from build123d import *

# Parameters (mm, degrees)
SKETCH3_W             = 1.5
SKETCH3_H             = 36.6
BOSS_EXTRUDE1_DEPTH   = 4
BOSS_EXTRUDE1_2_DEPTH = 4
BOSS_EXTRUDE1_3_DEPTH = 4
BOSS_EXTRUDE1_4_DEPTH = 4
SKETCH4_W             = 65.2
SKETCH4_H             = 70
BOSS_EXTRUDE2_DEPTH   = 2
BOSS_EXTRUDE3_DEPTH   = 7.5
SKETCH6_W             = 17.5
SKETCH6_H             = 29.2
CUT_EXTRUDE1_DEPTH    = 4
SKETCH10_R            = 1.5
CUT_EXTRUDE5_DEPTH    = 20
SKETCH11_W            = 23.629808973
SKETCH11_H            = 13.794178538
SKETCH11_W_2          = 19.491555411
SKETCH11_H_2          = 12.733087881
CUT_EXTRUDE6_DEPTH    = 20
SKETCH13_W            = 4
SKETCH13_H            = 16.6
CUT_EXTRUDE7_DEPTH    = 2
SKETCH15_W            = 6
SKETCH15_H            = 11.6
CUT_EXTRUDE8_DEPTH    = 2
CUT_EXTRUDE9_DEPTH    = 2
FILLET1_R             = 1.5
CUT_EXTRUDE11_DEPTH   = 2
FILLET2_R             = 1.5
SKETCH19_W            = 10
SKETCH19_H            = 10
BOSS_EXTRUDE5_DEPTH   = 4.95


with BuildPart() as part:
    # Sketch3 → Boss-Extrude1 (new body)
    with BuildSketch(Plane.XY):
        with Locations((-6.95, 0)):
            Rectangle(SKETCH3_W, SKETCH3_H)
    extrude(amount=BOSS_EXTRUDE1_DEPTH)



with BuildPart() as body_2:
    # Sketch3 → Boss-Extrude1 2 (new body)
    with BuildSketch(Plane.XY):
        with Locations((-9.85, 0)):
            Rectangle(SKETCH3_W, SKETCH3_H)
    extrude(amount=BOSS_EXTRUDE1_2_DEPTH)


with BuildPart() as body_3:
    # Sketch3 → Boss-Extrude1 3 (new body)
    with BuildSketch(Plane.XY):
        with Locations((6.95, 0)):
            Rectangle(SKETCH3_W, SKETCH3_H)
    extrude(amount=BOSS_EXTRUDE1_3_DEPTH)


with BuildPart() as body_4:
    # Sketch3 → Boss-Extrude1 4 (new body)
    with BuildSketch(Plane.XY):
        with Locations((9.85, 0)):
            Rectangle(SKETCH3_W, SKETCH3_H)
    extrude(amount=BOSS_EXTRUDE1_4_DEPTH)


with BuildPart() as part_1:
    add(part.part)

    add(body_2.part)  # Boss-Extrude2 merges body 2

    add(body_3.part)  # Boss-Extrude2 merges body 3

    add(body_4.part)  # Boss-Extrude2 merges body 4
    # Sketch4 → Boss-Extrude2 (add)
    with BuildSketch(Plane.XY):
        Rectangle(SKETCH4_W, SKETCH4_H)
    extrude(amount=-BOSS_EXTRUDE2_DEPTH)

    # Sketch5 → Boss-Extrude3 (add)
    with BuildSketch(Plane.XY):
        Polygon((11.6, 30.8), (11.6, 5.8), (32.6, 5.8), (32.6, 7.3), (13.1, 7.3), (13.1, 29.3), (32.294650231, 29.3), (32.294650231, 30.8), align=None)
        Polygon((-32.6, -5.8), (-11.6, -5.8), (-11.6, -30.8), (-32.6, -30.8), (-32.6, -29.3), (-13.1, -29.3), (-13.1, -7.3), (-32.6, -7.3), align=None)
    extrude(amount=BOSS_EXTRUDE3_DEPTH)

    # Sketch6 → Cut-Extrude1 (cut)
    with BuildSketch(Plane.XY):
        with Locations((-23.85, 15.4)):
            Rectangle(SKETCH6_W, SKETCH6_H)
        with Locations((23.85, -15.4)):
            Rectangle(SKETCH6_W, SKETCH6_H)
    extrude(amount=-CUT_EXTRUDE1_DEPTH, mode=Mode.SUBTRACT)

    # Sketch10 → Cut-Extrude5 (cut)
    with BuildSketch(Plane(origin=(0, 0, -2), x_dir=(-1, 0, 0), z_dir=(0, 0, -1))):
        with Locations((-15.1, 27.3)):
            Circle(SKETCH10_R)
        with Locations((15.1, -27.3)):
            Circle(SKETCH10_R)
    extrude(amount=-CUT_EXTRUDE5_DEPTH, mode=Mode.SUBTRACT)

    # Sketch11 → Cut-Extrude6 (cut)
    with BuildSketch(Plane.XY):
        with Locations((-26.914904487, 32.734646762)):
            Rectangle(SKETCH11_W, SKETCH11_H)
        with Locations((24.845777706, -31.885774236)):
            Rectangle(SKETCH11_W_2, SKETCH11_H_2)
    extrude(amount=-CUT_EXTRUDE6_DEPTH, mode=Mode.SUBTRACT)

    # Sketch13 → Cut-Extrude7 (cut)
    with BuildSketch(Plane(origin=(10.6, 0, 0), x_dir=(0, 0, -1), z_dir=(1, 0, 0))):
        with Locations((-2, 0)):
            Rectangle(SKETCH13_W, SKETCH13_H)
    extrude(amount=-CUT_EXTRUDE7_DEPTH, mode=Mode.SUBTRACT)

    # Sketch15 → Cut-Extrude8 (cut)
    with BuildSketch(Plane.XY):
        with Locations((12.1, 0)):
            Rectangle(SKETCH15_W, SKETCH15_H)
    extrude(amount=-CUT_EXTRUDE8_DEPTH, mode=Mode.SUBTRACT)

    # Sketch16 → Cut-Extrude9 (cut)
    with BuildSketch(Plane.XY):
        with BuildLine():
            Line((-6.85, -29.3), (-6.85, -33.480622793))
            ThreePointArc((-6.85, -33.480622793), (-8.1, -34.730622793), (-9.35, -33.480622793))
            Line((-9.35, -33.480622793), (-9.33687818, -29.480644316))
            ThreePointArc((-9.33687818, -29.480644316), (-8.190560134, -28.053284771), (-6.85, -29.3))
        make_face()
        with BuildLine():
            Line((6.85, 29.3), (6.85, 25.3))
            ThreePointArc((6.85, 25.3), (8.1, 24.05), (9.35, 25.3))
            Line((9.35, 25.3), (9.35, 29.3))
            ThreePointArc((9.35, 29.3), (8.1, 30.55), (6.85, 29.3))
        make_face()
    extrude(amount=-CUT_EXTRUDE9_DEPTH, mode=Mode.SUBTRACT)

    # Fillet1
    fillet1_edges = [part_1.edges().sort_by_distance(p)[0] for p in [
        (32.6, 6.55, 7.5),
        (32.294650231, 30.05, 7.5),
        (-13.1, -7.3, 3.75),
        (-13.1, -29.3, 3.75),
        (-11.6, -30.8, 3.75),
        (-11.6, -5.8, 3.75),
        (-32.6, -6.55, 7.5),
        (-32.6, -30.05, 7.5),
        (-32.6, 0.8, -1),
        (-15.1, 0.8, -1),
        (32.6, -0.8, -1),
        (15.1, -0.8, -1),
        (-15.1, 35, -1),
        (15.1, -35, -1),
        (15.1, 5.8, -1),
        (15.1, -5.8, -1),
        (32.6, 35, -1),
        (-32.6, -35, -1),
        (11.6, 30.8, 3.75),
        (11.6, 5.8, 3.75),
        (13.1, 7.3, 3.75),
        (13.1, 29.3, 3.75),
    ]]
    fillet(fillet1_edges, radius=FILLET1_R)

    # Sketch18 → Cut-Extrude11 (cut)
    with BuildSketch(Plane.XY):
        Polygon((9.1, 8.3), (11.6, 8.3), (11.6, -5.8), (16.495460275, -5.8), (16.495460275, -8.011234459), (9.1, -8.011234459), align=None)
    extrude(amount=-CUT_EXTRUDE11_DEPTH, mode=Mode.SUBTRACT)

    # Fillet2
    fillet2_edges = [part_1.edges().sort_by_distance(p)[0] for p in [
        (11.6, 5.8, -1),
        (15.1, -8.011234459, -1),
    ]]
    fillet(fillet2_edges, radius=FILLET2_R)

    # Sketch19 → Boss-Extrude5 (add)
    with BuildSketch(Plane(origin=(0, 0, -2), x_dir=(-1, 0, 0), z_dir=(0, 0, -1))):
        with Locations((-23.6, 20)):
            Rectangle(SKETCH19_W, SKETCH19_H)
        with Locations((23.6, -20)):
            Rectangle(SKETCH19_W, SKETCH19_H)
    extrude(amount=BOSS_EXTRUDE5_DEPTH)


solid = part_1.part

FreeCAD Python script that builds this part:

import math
import FreeCAD as App
import Part
import Sketcher

V = App.Vector


def edges_at(feature, points):
    """Names of the edges that pass closest to the given points."""
    edges = feature.Shape.Edges
    near = lambda p: min(range(len(edges)), key=lambda i: edges[i].distToShape(Part.Vertex(*p))[0])
    return sorted({f"Edge{near(p) + 1}" for p in points})


def add_polygon(sketch, points):
    """Adds a closed chain of lines whose ends are joined by coincident constraints."""
    first, n = sketch.GeometryCount, len(points)
    for a, b in zip(points, points[1:] + points[:1]):
        sketch.addGeometry(Part.LineSegment(App.Vector(*a, 0), App.Vector(*b, 0)), False)
    for i in range(n):
        sketch.addConstraint(Sketcher.Constraint("Coincident", first + i, 2, first + (i + 1) % n, 1))

doc = App.newDocument("Part")
body = doc.addObject("PartDesign::Body", "Body")

sketch1 = body.newObject("Sketcher::SketchObject", "Sketch")
sketch1.AttachmentSupport = (doc.getObject("XY_Plane"), [""])
sketch1.MapMode = "FlatFace"
add_polygon(sketch1, [(-7.7, 18.3), (-7.7, -18.3), (-6.2, -18.3), (-6.2, 18.3)])
sketch1.addConstraint(Sketcher.Constraint("Vertical", 0))
sketch1.addConstraint(Sketcher.Constraint("Horizontal", 1))
sketch1.addConstraint(Sketcher.Constraint("Vertical", 2))
sketch1.addConstraint(Sketcher.Constraint("Horizontal", 3))
sketch1.addConstraint(Sketcher.Constraint("DistanceX", 1, 1, 1, 2, 1.5))
sketch1.addConstraint(Sketcher.Constraint("DistanceY", 0, 2, 0, 1, 36.6))
sketch1.addConstraint(Sketcher.Constraint("DistanceX", 0, 2, -1, 1, 7.7))
sketch1.addConstraint(Sketcher.Constraint("DistanceY", 0, 2, -1, 1, 18.3))
pad1 = body.newObject("PartDesign::Pad", "Pad")
pad1.Profile = sketch1
pad1.Length = 4
body2 = doc.addObject("PartDesign::Body", "Body001")

sketch2 = body2.newObject("Sketcher::SketchObject", "Sketch001")
sketch2.AttachmentSupport = (doc.getObject("XY_Plane001"), [""])
sketch2.MapMode = "FlatFace"
add_polygon(sketch2, [(-10.6, 18.3), (-10.6, -18.3), (-9.1, -18.3), (-9.1, 18.3)])
sketch2.addConstraint(Sketcher.Constraint("Vertical", 0))
sketch2.addConstraint(Sketcher.Constraint("Horizontal", 1))
sketch2.addConstraint(Sketcher.Constraint("Vertical", 2))
sketch2.addConstraint(Sketcher.Constraint("Horizontal", 3))
sketch2.addConstraint(Sketcher.Constraint("DistanceX", 1, 1, 1, 2, 1.5))
sketch2.addConstraint(Sketcher.Constraint("DistanceY", 0, 2, 0, 1, 36.6))
sketch2.addConstraint(Sketcher.Constraint("DistanceX", 0, 2, -1, 1, 10.6))
sketch2.addConstraint(Sketcher.Constraint("DistanceY", 0, 2, -1, 1, 18.3))
pad2 = body2.newObject("PartDesign::Pad", "Pad001")
pad2.Profile = sketch2
pad2.Length = 4
body3 = doc.addObject("PartDesign::Body", "Body002")

sketch3 = body3.newObject("Sketcher::SketchObject", "Sketch002")
sketch3.AttachmentSupport = (doc.getObject("XY_Plane002"), [""])
sketch3.MapMode = "FlatFace"
add_polygon(sketch3, [(6.2, 18.3), (6.2, -18.3), (7.7, -18.3), (7.7, 18.3)])
sketch3.addConstraint(Sketcher.Constraint("Vertical", 0))
sketch3.addConstraint(Sketcher.Constraint("Horizontal", 1))
sketch3.addConstraint(Sketcher.Constraint("Vertical", 2))
sketch3.addConstraint(Sketcher.Constraint("Horizontal", 3))
sketch3.addConstraint(Sketcher.Constraint("DistanceX", 1, 1, 1, 2, 1.5))
sketch3.addConstraint(Sketcher.Constraint("DistanceY", 0, 2, 0, 1, 36.6))
sketch3.addConstraint(Sketcher.Constraint("DistanceX", -1, 1, 0, 2, 6.2))
sketch3.addConstraint(Sketcher.Constraint("DistanceY", 0, 2, -1, 1, 18.3))
pad3 = body3.newObject("PartDesign::Pad", "Pad002")
pad3.Profile = sketch3
pad3.Length = 4
body4 = doc.addObject("PartDesign::Body", "Body003")

sketch4 = body4.newObject("Sketcher::SketchObject", "Sketch003")
sketch4.AttachmentSupport = (doc.getObject("XY_Plane003"), [""])
sketch4.MapMode = "FlatFace"
add_polygon(sketch4, [(9.1, 18.3), (9.1, -18.3), (10.6, -18.3), (10.6, 18.3)])
sketch4.addConstraint(Sketcher.Constraint("Vertical", 0))
sketch4.addConstraint(Sketcher.Constraint("Horizontal", 1))
sketch4.addConstraint(Sketcher.Constraint("Vertical", 2))
sketch4.addConstraint(Sketcher.Constraint("Horizontal", 3))
sketch4.addConstraint(Sketcher.Constraint("DistanceX", 1, 1, 1, 2, 1.5))
sketch4.addConstraint(Sketcher.Constraint("DistanceY", 0, 2, 0, 1, 36.6))
sketch4.addConstraint(Sketcher.Constraint("DistanceX", -1, 1, 0, 2, 9.1))
sketch4.addConstraint(Sketcher.Constraint("DistanceY", 0, 2, -1, 1, 18.3))
pad4 = body4.newObject("PartDesign::Pad", "Pad003")
pad4.Profile = sketch4
pad4.Length = 4
body.AllowCompound = True
doc.recompute()

boolean = body.newObject("PartDesign::Boolean", "Boolean")
boolean.Type = "Fuse"
boolean.addObjects([body2])
doc.recompute()

boolean2 = body.newObject("PartDesign::Boolean", "Boolean001")
boolean2.Type = "Fuse"
boolean2.addObjects([body3])
doc.recompute()

boolean3 = body.newObject("PartDesign::Boolean", "Boolean002")
boolean3.Type = "Fuse"
boolean3.addObjects([body4])

sketch5 = body.newObject("Sketcher::SketchObject", "Sketch004")
sketch5.AttachmentSupport = (doc.getObject("XY_Plane"), [""])
sketch5.MapMode = "FlatFace"
add_polygon(sketch5, [(-33, 35), (-33, -35), (33, -35), (33, 35)])
sketch5.addConstraint(Sketcher.Constraint("Vertical", 0))
sketch5.addConstraint(Sketcher.Constraint("Horizontal", 1))
sketch5.addConstraint(Sketcher.Constraint("Vertical", 2))
sketch5.addConstraint(Sketcher.Constraint("Horizontal", 3))
sketch5.addConstraint(Sketcher.Constraint("Symmetric", 0, 2, 2, 2, -1, 1))
sketch5.addConstraint(Sketcher.Constraint("DistanceY", 0, 2, 0, 1, 70.0))
sketch5.addConstraint(Sketcher.Constraint("DistanceX", 1, 1, 1, 2, 65.2))
pad5 = body.newObject("PartDesign::Pad", "Pad004")
pad5.Profile = sketch5
pad5.Length = 2
pad5.Reversed = True

sketch6 = body.newObject("Sketcher::SketchObject", "Sketch005")
sketch6.AttachmentSupport = (doc.getObject("XY_Plane"), [""])
sketch6.MapMode = "FlatFace"
add_polygon(sketch6, [(11.6, 30.8), (11.6, 5.8), (32.6, 5.8), (32.6, 7.3), (13.1, 7.3), (13.1, 29.3), (32.3, 29.3), (32.3, 30.8)])
add_polygon(sketch6, [(-11.6, -5.8), (-32.6, -5.8), (-32.6, -7.3), (-13.1, -7.3), (-13.1, -29.3), (-32.6, -29.3), (-32.6, -30.8), (-11.6, -30.8)])
sketch6.addConstraint(Sketcher.Constraint("Vertical", 0))
sketch6.addConstraint(Sketcher.Constraint("Horizontal", 1))
sketch6.addConstraint(Sketcher.Constraint("Vertical", 2))
sketch6.addConstraint(Sketcher.Constraint("Horizontal", 3))
sketch6.addConstraint(Sketcher.Constraint("Vertical", 4))
sketch6.addConstraint(Sketcher.Constraint("Horizontal", 5))
sketch6.addConstraint(Sketcher.Constraint("Vertical", 6))
sketch6.addConstraint(Sketcher.Constraint("Horizontal", 7))
sketch6.addConstraint(Sketcher.Constraint("Horizontal", 8))
sketch6.addConstraint(Sketcher.Constraint("Vertical", 9))
sketch6.addConstraint(Sketcher.Constraint("Horizontal", 10))
sketch6.addConstraint(Sketcher.Constraint("Vertical", 11))
sketch6.addConstraint(Sketcher.Constraint("Horizontal", 12))
sketch6.addConstraint(Sketcher.Constraint("Vertical", 13))
sketch6.addConstraint(Sketcher.Constraint("Horizontal", 14))
sketch6.addConstraint(Sketcher.Constraint("Vertical", 15))
sketch6.addConstraint(Sketcher.Constraint("Symmetric", 1, 2, 8, 2, -1, 1))
sketch6.addConstraint(Sketcher.Constraint("Symmetric", 3, 2, 10, 2, -1, 1))
sketch6.addConstraint(Sketcher.Constraint("Symmetric", 7, 2, 14, 2, -1, 1))
sketch6.addConstraint(Sketcher.Constraint("Vertical", 9, 2, 12, 2))
sketch6.addConstraint(Sketcher.Constraint("Equal", 2, 6))
sketch6.addConstraint(Sketcher.Constraint("Equal", 4, 11))
sketch6.addConstraint(Sketcher.Constraint("DistanceX", 1, 1, 1, 2, 21.0))
sketch6.addConstraint(Sketcher.Constraint("DistanceY", 0, 2, 0, 1, 25.0))
sketch6.addConstraint(Sketcher.Constraint("DistanceY", 4, 1, 4, 2, 22.0))
sketch6.addConstraint(Sketcher.Constraint("DistanceX", 3, 2, 3, 1, 19.5))
sketch6.addConstraint(Sketcher.Constraint("DistanceX", -1, 1, 0, 2, 11.6))
sketch6.addConstraint(Sketcher.Constraint("DistanceY", -1, 1, 0, 2, 5.8))
sketch6.addConstraint(Sketcher.Constraint("DistanceX", 5, 1, 5, 2, 19.19465))
pad6 = body.newObject("PartDesign::Pad", "Pad005")
pad6.Profile = sketch6
pad6.Length = 7.5

sketch7 = body.newObject("Sketcher::SketchObject", "Sketch006")
sketch7.AttachmentSupport = (doc.getObject("XY_Plane"), [""])
sketch7.MapMode = "FlatFace"
add_polygon(sketch7, [(-33, 30), (-33, 1), (-15, 1), (-15, 30)])
add_polygon(sketch7, [(15, -1), (15, -30), (33, -30), (33, -1)])
sketch7.addConstraint(Sketcher.Constraint("Vertical", 0))
sketch7.addConstraint(Sketcher.Constraint("Horizontal", 1))
sketch7.addConstraint(Sketcher.Constraint("Vertical", 2))
sketch7.addConstraint(Sketcher.Constraint("Horizontal", 3))
sketch7.addConstraint(Sketcher.Constraint("Vertical", 4))
sketch7.addConstraint(Sketcher.Constraint("Horizontal", 5))
sketch7.addConstraint(Sketcher.Constraint("Vertical", 6))
sketch7.addConstraint(Sketcher.Constraint("Horizontal", 7))
sketch7.addConstraint(Sketcher.Constraint("Symmetric", 2, 2, 4, 2, -1, 1))
sketch7.addConstraint(Sketcher.Constraint("Symmetric", 0, 2, 6, 2, -1, 1))
sketch7.addConstraint(Sketcher.Constraint("DistanceX", 1, 1, 1, 2, 17.5))
sketch7.addConstraint(Sketcher.Constraint("DistanceY", 0, 2, 0, 1, 29.2))
sketch7.addConstraint(Sketcher.Constraint("DistanceY", -1, 1, 2, 2, 30.0))
sketch7.addConstraint(Sketcher.Constraint("DistanceX", 0, 2, -1, 1, 32.6))
pocket1 = body.newObject("PartDesign::Pocket", "Pocket")
pocket1.Profile = sketch7
pocket1.Length = 4

sketch8 = body.newObject("Sketcher::SketchObject", "Sketch007")
sketch8.AttachmentSupport = (doc.getObject("XY_Plane"), [""])
sketch8.MapMode = "FlatFace"
sketch8.AttachmentOffset = App.Placement(V(0, 0, -2), App.Rotation())
sketch8.addGeometry(Part.Circle(V(15.1, 27.3, 0), V(0, 0, 1), 1.5), False)
sketch8.addGeometry(Part.Circle(V(-15.1, -27.3, 0), V(0, 0, 1), 1.5), False)
sketch8.addConstraint(Sketcher.Constraint("Equal", 0, 1))
sketch8.addConstraint(Sketcher.Constraint("Symmetric", 0, 3, 1, 3, -1, 1))
sketch8.addConstraint(Sketcher.Constraint("Diameter", 0, 3.0))
sketch8.addConstraint(Sketcher.Constraint("DistanceX", -1, 1, 0, 3, 15.1))
sketch8.addConstraint(Sketcher.Constraint("DistanceY", -1, 1, 0, 3, 27.3))
pocket2 = body.newObject("PartDesign::Pocket", "Pocket001")
pocket2.Profile = sketch8
pocket2.Length = 20
pocket2.Reversed = True

sketch9 = body.newObject("Sketcher::SketchObject", "Sketch008")
sketch9.AttachmentSupport = (doc.getObject("XY_Plane"), [""])
sketch9.MapMode = "FlatFace"
add_polygon(sketch9, [(-39, 40), (-39, 26), (-15, 26), (-15, 40)])
add_polygon(sketch9, [(15, -26), (15, -38), (35, -38), (35, -26)])
sketch9.addConstraint(Sketcher.Constraint("Vertical", 0))
sketch9.addConstraint(Sketcher.Constraint("Horizontal", 1))
sketch9.addConstraint(Sketcher.Constraint("Vertical", 2))
sketch9.addConstraint(Sketcher.Constraint("Horizontal", 3))
sketch9.addConstraint(Sketcher.Constraint("Vertical", 4))
sketch9.addConstraint(Sketcher.Constraint("Horizontal", 5))
sketch9.addConstraint(Sketcher.Constraint("Vertical", 6))
sketch9.addConstraint(Sketcher.Constraint("Horizontal", 7))
sketch9.addConstraint(Sketcher.Constraint("DistanceX", 1, 2, -1, 1, 15.1))
sketch9.addConstraint(Sketcher.Constraint("DistanceX", -1, 1, 4, 2, 15.1))
sketch9.addConstraint(Sketcher.Constraint("DistanceX", 1, 1, 1, 2, 23.629809))
sketch9.addConstraint(Sketcher.Constraint("DistanceY", 0, 2, 0, 1, 13.794179))
sketch9.addConstraint(Sketcher.Constraint("DistanceX", 5, 1, 5, 2, 19.491555))
sketch9.addConstraint(Sketcher.Constraint("DistanceY", 4, 2, 4, 1, 12.733088))
sketch9.addConstraint(Sketcher.Constraint("DistanceY", 4, 2, -1, 1, 38.252318))
sketch9.addConstraint(Sketcher.Constraint("DistanceY", -1, 1, 0, 2, 25.837557))
pocket3 = body.newObject("PartDesign::Pocket", "Pocket002")
pocket3.Profile = sketch9
pocket3.Length = 20

sketch10 = body.newObject("Sketcher::SketchObject", "Sketch009")
sketch10.AttachmentSupport = (doc.getObject("YZ_Plane"), [""])
sketch10.MapMode = "FlatFace"
sketch10.AttachmentOffset = App.Placement(V(0, 0, 10.6), App.Rotation())
add_polygon(sketch10, [(8.3, 4), (-8.3, 4), (-8.3, 0), (8.3, 0)])
sketch10.addConstraint(Sketcher.Constraint("Horizontal", 0))
sketch10.addConstraint(Sketcher.Constraint("Vertical", 1))
sketch10.addConstraint(Sketcher.Constraint("Horizontal", 2))
sketch10.addConstraint(Sketcher.Constraint("Vertical", 3))
sketch10.addConstraint(Sketcher.Constraint("Symmetric", 1, 2, 2, 2, -1, 1))
sketch10.addConstraint(Sketcher.Constraint("DistanceY", 1, 2, 1, 1, 4.0))
sketch10.addConstraint(Sketcher.Constraint("DistanceX", 0, 2, 0, 1, 16.6))
pocket4 = body.newObject("PartDesign::Pocket", "Pocket003")
pocket4.Profile = sketch10
pocket4.Length = 2

sketch11 = body.newObject("Sketcher::SketchObject", "Sketch010")
sketch11.AttachmentSupport = (doc.getObject("XY_Plane"), [""])
sketch11.MapMode = "FlatFace"
add_polygon(sketch11, [(9, 6), (9, -6), (15, -6), (15, 6)])
sketch11.addConstraint(Sketcher.Constraint("Vertical", 0))
sketch11.addConstraint(Sketcher.Constraint("Horizontal", 1))
sketch11.addConstraint(Sketcher.Constraint("Vertical", 2))
sketch11.addConstraint(Sketcher.Constraint("Horizontal", 3))
sketch11.addConstraint(Sketcher.Constraint("DistanceX", 1, 1, 1, 2, 6.0))
sketch11.addConstraint(Sketcher.Constraint("DistanceY", 0, 2, 0, 1, 11.6))
sketch11.addConstraint(Sketcher.Constraint("DistanceX", -1, 1, 0, 2, 9.1))
sketch11.addConstraint(Sketcher.Constraint("DistanceY", 0, 2, -1, 1, 5.8))
pocket5 = body.newObject("PartDesign::Pocket", "Pocket004")
pocket5.Profile = sketch11
pocket5.Length = 2

sketch12 = body.newObject("Sketcher::SketchObject", "Sketch011")
sketch12.AttachmentSupport = (doc.getObject("XY_Plane"), [""])
sketch12.MapMode = "FlatFace"
sketch12.addGeometry(Part.LineSegment(V(-6.8, -33.5, 0), V(-6.8, -29.3, 0)), False)
sketch12.addGeometry(Part.ArcOfCircle(Part.Circle(V(-8.1, -29.3, 0), V(0, 0, 1), 1.2), math.radians(0), math.radians(188)), False)
sketch12.addGeometry(Part.LineSegment(V(-9.3, -29.5, 0), V(-9.3, -33.5, 0)), False)
sketch12.addGeometry(Part.ArcOfCircle(Part.Circle(V(-8.1, -33.5, 0), V(0, 0, 1), 1.2), math.radians(180), math.radians(360)), False)
sketch12.addGeometry(Part.LineSegment(V(6.8, 29.3, 0), V(6.8, 25.3, 0)), False)
sketch12.addGeometry(Part.ArcOfCircle(Part.Circle(V(8.1, 25.3, 0), V(0, 0, 1), 1.2), math.radians(180), math.radians(360)), False)
sketch12.addGeometry(Part.LineSegment(V(9.3, 25.3, 0), V(9.3, 29.3, 0)), False)
sketch12.addGeometry(Part.ArcOfCircle(Part.Circle(V(8.1, 29.3, 0), V(0, 0, 1), 1.2), math.radians(0), math.radians(180)), False)
sketch12.addConstraint(Sketcher.Constraint("Tangent", 0, 2, 1, 1))
sketch12.addConstraint(Sketcher.Constraint("Coincident", 1, 2, 2, 1))
sketch12.addConstraint(Sketcher.Constraint("Coincident", 2, 2, 3, 1))
sketch12.addConstraint(Sketcher.Constraint("Tangent", 3, 2, 0, 1))
sketch12.addConstraint(Sketcher.Constraint("Tangent", 4, 2, 5, 1))
sketch12.addConstraint(Sketcher.Constraint("Tangent", 5, 2, 6, 1))
sketch12.addConstraint(Sketcher.Constraint("Tangent", 6, 2, 7, 1))
sketch12.addConstraint(Sketcher.Constraint("Tangent", 7, 2, 4, 1))
sketch12.addConstraint(Sketcher.Constraint("Vertical", 0))
sketch12.addConstraint(Sketcher.Constraint("Vertical", 4))
sketch12.addConstraint(Sketcher.Constraint("Vertical", 6))
sketch12.addConstraint(Sketcher.Constraint("Equal", 1, 3))
sketch12.addConstraint(Sketcher.Constraint("Equal", 3, 5))
sketch12.addConstraint(Sketcher.Constraint("Symmetric", 1, 3, 7, 3, -1, 1))
sketch12.addConstraint(Sketcher.Constraint("Horizontal", 3, 3, 2, 2))
sketch12.addConstraint(Sketcher.Constraint("DistanceY", 4, 2, 4, 1, 4.0))
sketch12.addConstraint(Sketcher.Constraint("Radius", 1, 1.25))
sketch12.addConstraint(Sketcher.Constraint("Distance", 2, 4.0))
sketch12.addConstraint(Sketcher.Constraint("DistanceX", 1, 3, -1, 1, 8.1))
sketch12.addConstraint(Sketcher.Constraint("DistanceY", 1, 3, -1, 1, 29.3))
sketch12.addConstraint(Sketcher.Constraint("DistanceY", 0, 1, 0, 2, 4.180623))
pocket6 = body.newObject("PartDesign::Pocket", "Pocket005")
pocket6.Profile = sketch12
pocket6.Length = 2
doc.recompute()

fillet = body.newObject("PartDesign::Fillet", "Fillet")
fillet.Base = (pocket6, edges_at(pocket6, [
    (32.6, 6.55, 7.5),
    (32.295, 30.05, 7.5),
    (-13.1, -7.3, 3.75),
    (-13.1, -29.3, 3.75),
    (-11.6, -30.8, 3.75),
    (-11.6, -5.8, 3.75),
    (-32.6, -6.55, 7.5),
    (-32.6, -30.05, 7.5),
    (-32.6, 0.8, -1),
    (-15.1, 0.8, -1),
    (32.6, -0.8, -1),
    (15.1, -0.8, -1),
    (-15.1, 35, -1),
    (15.1, -35, -1),
    (15.1, 5.8, -1),
    (15.1, -5.8, -1),
    (32.6, 35, -1),
    (-32.6, -35, -1),
    (11.6, 30.8, 3.75),
    (11.6, 5.8, 3.75),
    (13.1, 7.3, 3.75),
    (13.1, 29.3, 3.75),
]))
fillet.Radius = 1.5

sketch13 = body.newObject("Sketcher::SketchObject", "Sketch012")
sketch13.AttachmentSupport = (doc.getObject("XY_Plane"), [""])
sketch13.MapMode = "FlatFace"
add_polygon(sketch13, [(11.6, 8.3), (9.1, 8.3), (9.1, -8), (16.5, -8), (16.5, -5.8), (11.6, -5.8)])
sketch13.addConstraint(Sketcher.Constraint("Horizontal", 0))
sketch13.addConstraint(Sketcher.Constraint("Vertical", 1))
sketch13.addConstraint(Sketcher.Constraint("Horizontal", 2))
sketch13.addConstraint(Sketcher.Constraint("Vertical", 3))
sketch13.addConstraint(Sketcher.Constraint("Horizontal", 4))
sketch13.addConstraint(Sketcher.Constraint("Vertical", 5))
sketch13.addConstraint(Sketcher.Constraint("DistanceX", 0, 2, 0, 1, 2.5))
sketch13.addConstraint(Sketcher.Constraint("DistanceY", 5, 1, 5, 2, 14.1))
sketch13.addConstraint(Sketcher.Constraint("DistanceX", -1, 1, 0, 2, 9.1))
sketch13.addConstraint(Sketcher.Constraint("DistanceY", -1, 1, 0, 2, 8.3))
sketch13.addConstraint(Sketcher.Constraint("DistanceX", 2, 1, 2, 2, 7.39546))
sketch13.addConstraint(Sketcher.Constraint("DistanceY", 1, 2, 1, 1, 16.311234))
pocket7 = body.newObject("PartDesign::Pocket", "Pocket006")
pocket7.Profile = sketch13
pocket7.Length = 2
doc.recompute()

fillet2 = body.newObject("PartDesign::Fillet", "Fillet001")
fillet2.Base = (pocket7, edges_at(pocket7, [(11.6, 5.8, -1), (15.1, -8.011, -1)]))
fillet2.Radius = 1.5

sketch14 = body.newObject("Sketcher::SketchObject", "Sketch013")
sketch14.AttachmentSupport = (doc.getObject("XY_Plane"), [""])
sketch14.MapMode = "FlatFace"
sketch14.AttachmentOffset = App.Placement(V(0, 0, -2), App.Rotation())
add_polygon(sketch14, [(29, 25), (29, 15), (19, 15), (19, 25)])
add_polygon(sketch14, [(-19, -15), (-19, -25), (-29, -25), (-29, -15)])
sketch14.addConstraint(Sketcher.Constraint("Vertical", 0))
sketch14.addConstraint(Sketcher.Constraint("Horizontal", 1))
sketch14.addConstraint(Sketcher.Constraint("Vertical", 2))
sketch14.addConstraint(Sketcher.Constraint("Horizontal", 3))
sketch14.addConstraint(Sketcher.Constraint("Vertical", 4))
sketch14.addConstraint(Sketcher.Constraint("Horizontal", 5))
sketch14.addConstraint(Sketcher.Constraint("Vertical", 6))
sketch14.addConstraint(Sketcher.Constraint("Horizontal", 7))
sketch14.addConstraint(Sketcher.Constraint("Symmetric", 2, 2, 4, 2, -1, 1))
sketch14.addConstraint(Sketcher.Constraint("Symmetric", 0, 2, 6, 2, -1, 1))
sketch14.addConstraint(Sketcher.Constraint("Equal", 7, 0))
sketch14.addConstraint(Sketcher.Constraint("DistanceX", 1, 2, 1, 1, 10.0))
sketch14.addConstraint(Sketcher.Constraint("DistanceY", -1, 1, 0, 2, 15.0))
sketch14.addConstraint(Sketcher.Constraint("DistanceX", -1, 1, 0, 2, 28.6))
pad7 = body.newObject("PartDesign::Pad", "Pad006")
pad7.Profile = sketch14
pad7.Length = 4.95
pad7.Reversed = True

doc.recompute()
